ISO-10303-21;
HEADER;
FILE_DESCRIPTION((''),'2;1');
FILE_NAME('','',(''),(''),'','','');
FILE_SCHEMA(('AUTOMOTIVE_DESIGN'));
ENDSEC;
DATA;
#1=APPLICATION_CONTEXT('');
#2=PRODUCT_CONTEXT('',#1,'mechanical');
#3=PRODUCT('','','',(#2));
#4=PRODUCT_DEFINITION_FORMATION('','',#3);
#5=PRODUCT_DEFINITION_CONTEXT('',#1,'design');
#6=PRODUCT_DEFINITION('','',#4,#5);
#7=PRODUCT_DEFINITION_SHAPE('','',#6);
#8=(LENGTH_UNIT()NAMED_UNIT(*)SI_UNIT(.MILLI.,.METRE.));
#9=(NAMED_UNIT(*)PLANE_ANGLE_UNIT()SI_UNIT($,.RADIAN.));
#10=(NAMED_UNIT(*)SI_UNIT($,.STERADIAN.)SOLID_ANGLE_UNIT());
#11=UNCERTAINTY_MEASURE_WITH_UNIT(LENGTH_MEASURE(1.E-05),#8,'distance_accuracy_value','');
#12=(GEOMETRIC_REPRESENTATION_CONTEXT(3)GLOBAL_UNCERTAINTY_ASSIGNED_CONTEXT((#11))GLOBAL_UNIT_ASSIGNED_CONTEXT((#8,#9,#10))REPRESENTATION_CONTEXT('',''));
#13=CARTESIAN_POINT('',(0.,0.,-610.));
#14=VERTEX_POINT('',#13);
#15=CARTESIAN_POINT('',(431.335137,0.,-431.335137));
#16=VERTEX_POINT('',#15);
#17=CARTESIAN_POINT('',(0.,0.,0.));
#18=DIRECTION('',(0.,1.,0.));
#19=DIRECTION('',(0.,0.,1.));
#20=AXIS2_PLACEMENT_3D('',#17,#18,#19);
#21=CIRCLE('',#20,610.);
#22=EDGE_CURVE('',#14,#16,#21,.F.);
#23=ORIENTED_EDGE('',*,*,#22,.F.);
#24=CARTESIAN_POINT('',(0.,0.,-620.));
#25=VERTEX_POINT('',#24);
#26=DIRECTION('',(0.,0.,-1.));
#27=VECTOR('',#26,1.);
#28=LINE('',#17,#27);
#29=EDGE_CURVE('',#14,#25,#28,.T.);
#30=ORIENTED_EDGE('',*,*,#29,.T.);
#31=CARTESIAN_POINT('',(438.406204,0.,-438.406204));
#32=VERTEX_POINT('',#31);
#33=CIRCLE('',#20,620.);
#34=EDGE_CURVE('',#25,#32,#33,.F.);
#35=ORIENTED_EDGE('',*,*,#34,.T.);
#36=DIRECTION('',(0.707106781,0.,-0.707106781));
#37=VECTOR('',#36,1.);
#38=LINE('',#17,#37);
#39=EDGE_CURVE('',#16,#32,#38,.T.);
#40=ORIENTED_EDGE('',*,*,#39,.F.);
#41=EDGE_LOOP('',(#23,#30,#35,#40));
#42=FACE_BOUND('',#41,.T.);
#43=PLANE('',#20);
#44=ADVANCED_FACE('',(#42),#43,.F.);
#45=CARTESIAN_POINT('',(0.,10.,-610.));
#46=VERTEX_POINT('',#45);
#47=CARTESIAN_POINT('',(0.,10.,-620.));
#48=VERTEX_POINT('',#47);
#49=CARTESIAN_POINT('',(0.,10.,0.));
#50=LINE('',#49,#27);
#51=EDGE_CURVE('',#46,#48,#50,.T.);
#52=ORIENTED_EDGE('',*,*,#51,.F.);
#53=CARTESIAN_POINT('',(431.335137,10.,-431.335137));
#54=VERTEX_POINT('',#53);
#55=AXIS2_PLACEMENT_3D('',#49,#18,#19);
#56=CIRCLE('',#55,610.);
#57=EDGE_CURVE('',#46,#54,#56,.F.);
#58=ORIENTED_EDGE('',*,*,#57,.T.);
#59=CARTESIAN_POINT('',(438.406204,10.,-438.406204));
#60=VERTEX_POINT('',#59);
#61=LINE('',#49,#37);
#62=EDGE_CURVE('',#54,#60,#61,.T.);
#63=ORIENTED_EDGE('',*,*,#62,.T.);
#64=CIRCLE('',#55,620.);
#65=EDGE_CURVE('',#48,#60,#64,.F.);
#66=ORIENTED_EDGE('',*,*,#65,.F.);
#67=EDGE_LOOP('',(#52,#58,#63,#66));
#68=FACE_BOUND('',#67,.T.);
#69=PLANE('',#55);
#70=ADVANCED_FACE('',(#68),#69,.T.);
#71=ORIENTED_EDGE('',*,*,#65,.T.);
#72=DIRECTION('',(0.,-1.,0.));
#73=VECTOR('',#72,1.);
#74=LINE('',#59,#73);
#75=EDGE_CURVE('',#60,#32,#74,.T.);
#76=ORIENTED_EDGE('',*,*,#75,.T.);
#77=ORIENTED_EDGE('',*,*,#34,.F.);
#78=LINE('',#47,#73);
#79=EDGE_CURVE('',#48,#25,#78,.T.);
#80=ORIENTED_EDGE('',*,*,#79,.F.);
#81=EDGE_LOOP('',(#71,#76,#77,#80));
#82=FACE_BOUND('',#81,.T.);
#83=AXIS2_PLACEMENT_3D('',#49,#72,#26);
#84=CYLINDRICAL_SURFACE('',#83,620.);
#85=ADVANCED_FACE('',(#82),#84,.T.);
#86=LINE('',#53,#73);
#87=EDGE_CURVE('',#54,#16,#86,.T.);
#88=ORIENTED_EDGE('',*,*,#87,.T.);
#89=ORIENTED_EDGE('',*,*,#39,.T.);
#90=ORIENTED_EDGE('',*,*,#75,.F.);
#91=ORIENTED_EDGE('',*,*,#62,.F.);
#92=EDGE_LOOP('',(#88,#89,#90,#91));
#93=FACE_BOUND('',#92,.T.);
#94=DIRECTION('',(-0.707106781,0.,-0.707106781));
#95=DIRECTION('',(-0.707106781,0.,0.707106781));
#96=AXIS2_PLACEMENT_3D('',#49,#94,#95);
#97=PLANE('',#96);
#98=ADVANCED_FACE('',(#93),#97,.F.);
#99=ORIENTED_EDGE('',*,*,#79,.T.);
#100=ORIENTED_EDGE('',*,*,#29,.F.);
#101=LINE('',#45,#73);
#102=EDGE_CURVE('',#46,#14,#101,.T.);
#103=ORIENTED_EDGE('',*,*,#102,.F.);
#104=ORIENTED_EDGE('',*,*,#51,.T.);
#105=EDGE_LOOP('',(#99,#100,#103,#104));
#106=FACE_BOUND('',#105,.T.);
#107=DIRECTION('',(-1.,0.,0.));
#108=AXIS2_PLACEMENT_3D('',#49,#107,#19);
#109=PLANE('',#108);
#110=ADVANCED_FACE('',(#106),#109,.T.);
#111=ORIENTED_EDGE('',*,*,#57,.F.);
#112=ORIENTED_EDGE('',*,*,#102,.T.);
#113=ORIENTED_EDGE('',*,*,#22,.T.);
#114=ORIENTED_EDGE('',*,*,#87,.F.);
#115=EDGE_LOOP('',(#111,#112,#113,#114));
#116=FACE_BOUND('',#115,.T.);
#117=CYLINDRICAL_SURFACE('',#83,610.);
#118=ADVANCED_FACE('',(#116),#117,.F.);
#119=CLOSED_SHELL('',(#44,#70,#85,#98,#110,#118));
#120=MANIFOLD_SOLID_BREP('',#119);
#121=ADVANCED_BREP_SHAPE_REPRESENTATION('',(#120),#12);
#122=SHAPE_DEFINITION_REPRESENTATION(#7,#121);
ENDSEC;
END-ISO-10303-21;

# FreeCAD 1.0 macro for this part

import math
import FreeCAD as App
import Part
import Sketcher

V = App.Vector
Q = App.Units.Quantity

doc = App.newDocument("Part")
body = doc.addObject("PartDesign::Body", "Body")

# Sketch on XZ plane
sketch1 = doc.addObject("Sketcher::SketchObject", "Sketch")
body.addObject(sketch1)
sketch1.AttachmentSupport = (doc.XZ_Plane, [""])
sketch1.MapMode = "FlatFace"
sketch1.addGeometry(Part.ArcOfCircle(Part.Circle(V(0, 0, 0), V(0, 0, 1), 620), math.radians(-90), math.radians(-45)), False)
sketch1.addGeometry(Part.LineSegment(V(0, -620, 0), V(0, -610, 0)), False)
sketch1.addGeometry(Part.ArcOfCircle(Part.Circle(V(0, 0, 0), V(0, 0, 1), 610), math.radians(-90), math.radians(-45)), False)
sketch1.addGeometry(Part.LineSegment(V(431, -431, 0), V(438, -438, 0)), False)
sketch1.addConstraint(Sketcher.Constraint("Coincident", 0, 1, 1, 1))
sketch1.addConstraint(Sketcher.Constraint("Coincident", 1, 2, 2, 1))
sketch1.addConstraint(Sketcher.Constraint("Coincident", 2, 2, 3, 1))
sketch1.addConstraint(Sketcher.Constraint("Coincident", 3, 2, 0, 2))
sketch1.addConstraint(Sketcher.Constraint("Vertical", 1))
sketch1.addConstraint(Sketcher.Constraint("Coincident", 0, 3, -1, 1))
sketch1.addConstraint(Sketcher.Constraint("Coincident", 2, 3, -1, 1))
sketch1.addConstraint(Sketcher.Constraint("PointOnObject", 1, 2, -2))
sketch1.addConstraint(Sketcher.Constraint("Radius", 0, Q("620 mm")))
sketch1.addConstraint(Sketcher.Constraint("Radius", 2, Q("610 mm")))
sketch1.addConstraint(Sketcher.Constraint("Angle", 3, Q("-45 deg")))
sketch1.addConstraint(Sketcher.Constraint("DistanceX", -1, 1, 3, 2, Q("438.406204 mm")))
pad1 = doc.addObject("PartDesign::Pad", "Pad")
body.addObject(pad1)
pad1.Profile = sketch1
pad1.Length = 10
pad1.Reversed = True

doc.recompute()
